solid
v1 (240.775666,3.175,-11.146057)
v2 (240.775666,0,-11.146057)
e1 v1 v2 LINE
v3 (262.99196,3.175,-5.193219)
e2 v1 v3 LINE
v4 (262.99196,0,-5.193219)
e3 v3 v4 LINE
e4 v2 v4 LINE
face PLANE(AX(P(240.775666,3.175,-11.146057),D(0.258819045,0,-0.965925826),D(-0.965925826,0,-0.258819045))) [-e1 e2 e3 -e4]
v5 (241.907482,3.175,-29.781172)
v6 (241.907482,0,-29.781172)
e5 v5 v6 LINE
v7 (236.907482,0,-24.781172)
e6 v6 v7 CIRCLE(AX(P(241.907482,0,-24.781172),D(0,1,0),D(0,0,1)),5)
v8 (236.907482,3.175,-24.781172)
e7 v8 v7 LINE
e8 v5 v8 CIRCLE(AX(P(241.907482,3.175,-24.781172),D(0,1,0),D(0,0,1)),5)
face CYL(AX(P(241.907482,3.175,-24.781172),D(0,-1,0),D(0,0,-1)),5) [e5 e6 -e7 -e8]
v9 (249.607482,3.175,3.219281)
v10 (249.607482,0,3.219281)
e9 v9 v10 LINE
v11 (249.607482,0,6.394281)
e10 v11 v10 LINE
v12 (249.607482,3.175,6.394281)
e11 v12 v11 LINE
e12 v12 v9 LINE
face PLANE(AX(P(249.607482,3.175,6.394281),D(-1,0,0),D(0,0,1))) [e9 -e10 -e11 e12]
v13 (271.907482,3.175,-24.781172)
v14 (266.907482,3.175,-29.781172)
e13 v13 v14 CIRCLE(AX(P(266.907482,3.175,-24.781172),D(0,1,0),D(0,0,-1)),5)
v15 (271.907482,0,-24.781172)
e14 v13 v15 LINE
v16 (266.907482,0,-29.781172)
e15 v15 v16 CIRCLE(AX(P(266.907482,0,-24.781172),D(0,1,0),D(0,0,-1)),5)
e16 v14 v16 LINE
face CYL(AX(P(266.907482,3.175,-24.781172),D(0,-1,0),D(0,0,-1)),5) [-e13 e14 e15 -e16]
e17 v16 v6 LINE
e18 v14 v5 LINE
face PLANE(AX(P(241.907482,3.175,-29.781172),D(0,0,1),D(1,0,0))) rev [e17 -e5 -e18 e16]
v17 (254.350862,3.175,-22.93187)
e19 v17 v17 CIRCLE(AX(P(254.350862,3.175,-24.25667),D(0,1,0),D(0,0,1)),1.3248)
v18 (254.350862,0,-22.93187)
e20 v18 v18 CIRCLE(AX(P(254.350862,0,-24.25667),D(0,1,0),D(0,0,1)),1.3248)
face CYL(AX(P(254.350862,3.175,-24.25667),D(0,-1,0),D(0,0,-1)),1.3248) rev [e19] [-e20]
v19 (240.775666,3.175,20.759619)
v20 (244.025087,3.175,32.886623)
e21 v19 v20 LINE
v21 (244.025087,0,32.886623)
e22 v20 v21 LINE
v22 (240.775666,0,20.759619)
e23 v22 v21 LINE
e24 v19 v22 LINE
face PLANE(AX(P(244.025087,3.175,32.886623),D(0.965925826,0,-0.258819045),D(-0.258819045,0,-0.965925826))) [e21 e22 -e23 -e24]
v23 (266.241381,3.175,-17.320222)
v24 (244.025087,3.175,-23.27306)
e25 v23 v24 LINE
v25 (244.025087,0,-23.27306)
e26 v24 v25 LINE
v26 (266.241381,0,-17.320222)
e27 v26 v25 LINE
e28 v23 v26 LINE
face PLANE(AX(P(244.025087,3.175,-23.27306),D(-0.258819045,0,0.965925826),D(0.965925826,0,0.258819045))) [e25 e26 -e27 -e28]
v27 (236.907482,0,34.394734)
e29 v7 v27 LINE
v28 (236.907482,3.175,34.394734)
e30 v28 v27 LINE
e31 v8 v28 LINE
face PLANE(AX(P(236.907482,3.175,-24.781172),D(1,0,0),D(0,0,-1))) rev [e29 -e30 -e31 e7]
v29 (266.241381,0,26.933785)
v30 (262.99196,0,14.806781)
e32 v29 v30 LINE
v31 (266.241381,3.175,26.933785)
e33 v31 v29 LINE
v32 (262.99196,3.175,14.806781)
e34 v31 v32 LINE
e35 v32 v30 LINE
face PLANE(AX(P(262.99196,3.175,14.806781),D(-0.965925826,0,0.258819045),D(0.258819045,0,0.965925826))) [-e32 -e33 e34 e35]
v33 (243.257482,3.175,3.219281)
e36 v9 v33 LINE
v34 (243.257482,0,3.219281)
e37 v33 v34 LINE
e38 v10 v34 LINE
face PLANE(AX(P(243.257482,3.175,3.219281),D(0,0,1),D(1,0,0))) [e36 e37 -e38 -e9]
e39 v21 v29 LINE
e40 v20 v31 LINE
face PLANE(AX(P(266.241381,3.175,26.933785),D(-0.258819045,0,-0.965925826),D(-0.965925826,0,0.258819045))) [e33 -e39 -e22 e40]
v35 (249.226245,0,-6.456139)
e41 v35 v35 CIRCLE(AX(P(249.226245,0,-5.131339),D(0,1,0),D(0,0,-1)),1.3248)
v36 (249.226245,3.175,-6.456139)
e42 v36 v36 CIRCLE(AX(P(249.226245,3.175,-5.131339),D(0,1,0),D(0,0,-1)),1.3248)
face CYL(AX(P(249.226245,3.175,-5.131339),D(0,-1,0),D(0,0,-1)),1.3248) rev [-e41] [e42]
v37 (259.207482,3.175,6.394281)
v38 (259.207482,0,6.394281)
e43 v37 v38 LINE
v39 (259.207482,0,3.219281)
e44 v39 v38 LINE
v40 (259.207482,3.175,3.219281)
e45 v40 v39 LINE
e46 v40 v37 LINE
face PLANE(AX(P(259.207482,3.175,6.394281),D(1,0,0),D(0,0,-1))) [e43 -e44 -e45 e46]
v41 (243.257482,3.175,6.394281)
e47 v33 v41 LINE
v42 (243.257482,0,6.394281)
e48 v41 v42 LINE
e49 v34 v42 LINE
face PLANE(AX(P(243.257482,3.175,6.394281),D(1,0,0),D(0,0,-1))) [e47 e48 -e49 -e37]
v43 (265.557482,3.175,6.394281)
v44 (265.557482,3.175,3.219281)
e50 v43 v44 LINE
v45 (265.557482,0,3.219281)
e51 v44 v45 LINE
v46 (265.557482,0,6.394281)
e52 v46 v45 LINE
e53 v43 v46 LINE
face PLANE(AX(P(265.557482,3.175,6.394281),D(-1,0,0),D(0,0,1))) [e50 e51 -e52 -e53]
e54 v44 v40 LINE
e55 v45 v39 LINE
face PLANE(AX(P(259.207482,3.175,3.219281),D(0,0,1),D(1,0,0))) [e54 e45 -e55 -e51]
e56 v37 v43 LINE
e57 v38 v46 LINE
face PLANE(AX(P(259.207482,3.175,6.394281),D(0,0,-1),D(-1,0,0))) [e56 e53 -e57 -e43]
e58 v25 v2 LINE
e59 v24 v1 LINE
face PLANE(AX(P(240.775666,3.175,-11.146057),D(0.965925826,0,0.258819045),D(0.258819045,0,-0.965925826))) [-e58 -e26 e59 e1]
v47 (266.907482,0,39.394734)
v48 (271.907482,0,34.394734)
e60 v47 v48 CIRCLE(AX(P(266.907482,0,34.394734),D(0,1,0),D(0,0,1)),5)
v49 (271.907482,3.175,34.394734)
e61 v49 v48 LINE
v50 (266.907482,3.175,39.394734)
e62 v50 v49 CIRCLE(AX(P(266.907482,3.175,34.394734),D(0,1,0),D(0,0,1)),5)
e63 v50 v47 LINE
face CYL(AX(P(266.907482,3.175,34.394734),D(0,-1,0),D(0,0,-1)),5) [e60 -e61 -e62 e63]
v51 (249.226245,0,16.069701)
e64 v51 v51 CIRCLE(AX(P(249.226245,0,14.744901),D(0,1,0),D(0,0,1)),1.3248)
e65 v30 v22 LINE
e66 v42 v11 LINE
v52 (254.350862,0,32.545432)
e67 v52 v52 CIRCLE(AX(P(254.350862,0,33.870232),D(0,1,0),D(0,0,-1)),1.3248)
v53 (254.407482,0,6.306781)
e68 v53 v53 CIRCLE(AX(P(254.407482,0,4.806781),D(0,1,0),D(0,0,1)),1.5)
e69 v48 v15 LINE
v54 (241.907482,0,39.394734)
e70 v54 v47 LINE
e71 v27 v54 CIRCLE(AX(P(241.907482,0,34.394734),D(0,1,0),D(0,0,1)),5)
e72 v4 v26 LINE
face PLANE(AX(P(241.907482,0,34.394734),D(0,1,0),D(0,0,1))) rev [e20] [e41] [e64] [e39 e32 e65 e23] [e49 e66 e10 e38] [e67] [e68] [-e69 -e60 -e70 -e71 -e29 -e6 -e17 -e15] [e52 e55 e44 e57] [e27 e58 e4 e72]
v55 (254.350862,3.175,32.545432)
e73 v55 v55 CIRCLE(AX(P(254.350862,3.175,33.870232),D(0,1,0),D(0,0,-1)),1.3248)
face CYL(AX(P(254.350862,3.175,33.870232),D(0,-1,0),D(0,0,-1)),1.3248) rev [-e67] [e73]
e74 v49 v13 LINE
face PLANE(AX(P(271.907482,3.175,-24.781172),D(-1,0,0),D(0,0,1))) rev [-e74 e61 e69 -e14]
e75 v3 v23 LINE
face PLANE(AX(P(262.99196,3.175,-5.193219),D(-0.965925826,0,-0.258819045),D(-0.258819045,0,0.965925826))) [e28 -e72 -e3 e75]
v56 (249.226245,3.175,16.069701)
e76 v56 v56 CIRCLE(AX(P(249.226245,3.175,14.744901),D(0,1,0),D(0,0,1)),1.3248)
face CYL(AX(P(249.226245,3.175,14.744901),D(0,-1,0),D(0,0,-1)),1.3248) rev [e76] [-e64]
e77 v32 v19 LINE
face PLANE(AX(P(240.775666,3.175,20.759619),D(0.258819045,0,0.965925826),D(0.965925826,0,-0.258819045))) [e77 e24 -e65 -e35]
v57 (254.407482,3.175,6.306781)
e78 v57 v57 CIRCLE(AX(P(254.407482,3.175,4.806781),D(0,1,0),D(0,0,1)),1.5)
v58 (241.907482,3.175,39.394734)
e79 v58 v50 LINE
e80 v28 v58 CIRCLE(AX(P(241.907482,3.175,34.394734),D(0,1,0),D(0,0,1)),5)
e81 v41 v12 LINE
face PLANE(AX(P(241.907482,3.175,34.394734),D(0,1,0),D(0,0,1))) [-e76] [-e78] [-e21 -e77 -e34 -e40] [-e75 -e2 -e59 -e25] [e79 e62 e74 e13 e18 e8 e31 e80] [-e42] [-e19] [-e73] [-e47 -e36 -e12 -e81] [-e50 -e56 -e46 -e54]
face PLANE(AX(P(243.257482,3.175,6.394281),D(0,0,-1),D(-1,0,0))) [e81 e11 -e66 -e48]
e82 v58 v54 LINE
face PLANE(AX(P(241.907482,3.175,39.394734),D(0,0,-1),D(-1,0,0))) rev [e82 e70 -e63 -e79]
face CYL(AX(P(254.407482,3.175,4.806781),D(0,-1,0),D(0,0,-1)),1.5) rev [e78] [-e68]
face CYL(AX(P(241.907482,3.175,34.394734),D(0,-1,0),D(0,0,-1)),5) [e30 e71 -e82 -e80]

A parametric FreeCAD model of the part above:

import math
import FreeCAD as App
import Part
import Sketcher
Q = App.Units.Quantity


def add_polygon(sketch, points):
    """Adds a closed chain of lines whose ends are joined by coincident constraints."""
    first, n = sketch.GeometryCount, len(points)
    for a, b in zip(points, points[1:] + points[:1]):
        sketch.addGeometry(Part.LineSegment(App.Vector(*a, 0), App.Vector(*b, 0)), False)
    for i in range(n):
        sketch.addConstraint(Sketcher.Constraint("Coincident", first + i, 2, first + (i + 1) % n, 1))

doc = App.newDocument("Part")
body = doc.addObject("PartDesign::Body", "Body")

sketch1 = doc.addObject("Sketcher::SketchObject", "Sketch")
body.addObject(sketch1)
sketch1.AttachmentSupport = (doc.XZ_Plane, [""])
sketch1.MapMode = "FlatFace"
sketch1.addGeometry(Part.LineSegment(App.Vector(266.9, -29.8, 0), App.Vector(241.9, -29.8, 0)), False)
sketch1.addGeometry(Part.ArcOfCircle(Part.Circle(App.Vector(241.9, -24.8, 0), App.Vector(0, 0, 1), 5), math.radians(180), math.radians(270)), False)
sketch1.addGeometry(Part.LineSegment(App.Vector(236.9, -24.8, 0), App.Vector(236.9, 34.4, 0)), False)
sketch1.addGeometry(Part.ArcOfCircle(Part.Circle(App.Vector(241.9, 34.4, 0), App.Vector(0, 0, 1), 5), math.radians(90), math.radians(180)), False)
sketch1.addGeometry(Part.LineSegment(App.Vector(241.9, 39.4, 0), App.Vector(266.9, 39.4, 0)), False)
sketch1.addGeometry(Part.ArcOfCircle(Part.Circle(App.Vector(266.9, 34.4, 0), App.Vector(0, 0, 1), 5), math.radians(0), math.radians(90)), False)
sketch1.addGeometry(Part.LineSegment(App.Vector(271.9, 34.4, 0), App.Vector(271.9, -24.8, 0)), False)
sketch1.addGeometry(Part.ArcOfCircle(Part.Circle(App.Vector(266.9, -24.8, 0), App.Vector(0, 0, 1), 5), math.radians(-90), math.radians(0)), False)
sketch1.addGeometry(Part.Circle(App.Vector(254.4, 33.9, 0), App.Vector(0, 0, 1), 1.3), False)
add_polygon(sketch1, [(259.2, 6.4), (259.2, 3.2), (265.6, 3.2), (265.6, 6.4)])
sketch1.addGeometry(Part.Circle(App.Vector(254.4, 4.8, 0), App.Vector(0, 0, 1), 1.5), False)
add_polygon(sketch1, [(263, 14.8), (266.2, 26.9), (244, 32.9), (240.8, 20.8)])
sketch1.addGeometry(Part.Circle(App.Vector(249.2, 14.7, 0), App.Vector(0, 0, 1), 1.3), False)
add_polygon(sketch1, [(243.3, 6.4), (243.3, 3.2), (249.6, 3.2), (249.6, 6.4)])
sketch1.addGeometry(Part.Circle(App.Vector(254.4, -24.3, 0), App.Vector(0, 0, 1), 1.3), False)
sketch1.addGeometry(Part.Circle(App.Vector(249.2, -5.1, 0), App.Vector(0, 0, 1), 1.3), False)
add_polygon(sketch1, [(240.8, -11.1), (244, -23.3), (266.2, -17.3), (263, -5.2)])
sketch1.addConstraint([
    Sketcher.Constraint("Tangent", 0, 2, 1, 2),
    Sketcher.Constraint("Tangent", 1, 1, 2, 1),
    Sketcher.Constraint("Tangent", 2, 2, 3, 2),
    Sketcher.Constraint("Tangent", 3, 1, 4, 1),
    Sketcher.Constraint("Tangent", 4, 2, 5, 2),
    Sketcher.Constraint("Tangent", 5, 1, 6, 1),
    Sketcher.Constraint("Tangent", 6, 2, 7, 2),
    Sketcher.Constraint("Tangent", 7, 1, 0, 1),
    Sketcher.Constraint("Horizontal", 0),
    Sketcher.Constraint("Vertical", 2),
    Sketcher.Constraint("Horizontal", 4),
    Sketcher.Constraint("Vertical", 6),
    Sketcher.Constraint("Vertical", 9),
    Sketcher.Constraint("Horizontal", 10),
    Sketcher.Constraint("Vertical", 11),
    Sketcher.Constraint("Horizontal", 12),
    Sketcher.Constraint("Vertical", 19),
    Sketcher.Constraint("Horizontal", 20),
    Sketcher.Constraint("Vertical", 21),
    Sketcher.Constraint("Horizontal", 22),
    Sketcher.Constraint("Equal", 1, 3),
    Sketcher.Constraint("Equal", 3, 5),
    Sketcher.Constraint("Equal", 5, 7),
    Sketcher.Constraint("Equal", 8, 18),
    Sketcher.Constraint("Equal", 18, 23),
    Sketcher.Constraint("Equal", 23, 24),
    Sketcher.Constraint("Perpendicular", 14, 15),
    Sketcher.Constraint("Perpendicular", 15, 16),
    Sketcher.Constraint("Perpendicular", 16, 17),
    Sketcher.Constraint("Perpendicular", 25, 26),
    Sketcher.Constraint("Perpendicular", 26, 27),
    Sketcher.Constraint("Perpendicular", 27, 28),
    Sketcher.Constraint("Horizontal", 10, 2, 19, 2),
    Sketcher.Constraint("Horizontal", 12, 2, 21, 2),
    Sketcher.Constraint("Vertical", 8, 3, 23, 3),
    Sketcher.Constraint("Vertical", 18, 3, 24, 3),
    Sketcher.Constraint("Vertical", 15, 2, 25, 2),
    Sketcher.Constraint("Vertical", 14, 2, 26, 2),
    Sketcher.Constraint("Vertical", 17, 2, 27, 2),
    Sketcher.Constraint("Equal", 12, 20),
    Sketcher.Constraint("Equal", 16, 25),
    Sketcher.Constraint("Diameter", 13, Q("3 mm")),
    Sketcher.Constraint("Radius", 1, Q("5 mm")),
    Sketcher.Constraint("DistanceX", 0, 2, 0, 1, Q("25 mm")),
    Sketcher.Constraint("Angle", 14, Q("75 deg")),
    Sketcher.Constraint("Distance", 15, Q("23 mm")),
    Sketcher.Constraint("Diameter", 8, Q("2.6496 mm")),
    Sketcher.Constraint("DistanceX", 10, 1, 10, 2, Q("6.35 mm")),
    Sketcher.Constraint("DistanceX", 13, 3, 5, 3, Q("12.5 mm")),
    Sketcher.Constraint("DistanceX", 13, 3, 9, 2, Q("4.8 mm")),
    Sketcher.Constraint("DistanceX", 20, 2, 13, 3, Q("4.8 mm")),
    Sketcher.Constraint("DistanceY", 9, 2, 9, 1, Q("3.175 mm")),
    Sketcher.Constraint("DistanceY", -1, 1, 18, 3, Q("14.744901 mm")),
    Sketcher.Constraint("DistanceY", 9, 2, 13, 3, Q("1.5875 mm")),
    Sketcher.Constraint("DistanceX", 14, 2, 5, 3, Q("0.666101 mm")),
    Sketcher.Constraint("DistanceY", 11, 2, 17, 2, Q("8.4125 mm")),
    Sketcher.Constraint("DistanceY", 27, 2, 10, 2, Q("8.4125 mm")),
    Sketcher.Constraint("DistanceY", 2, 1, 2, 2, Q("59.175907 mm")),
    Sketcher.Constraint("DistanceX", -1, 1, 1, 3, Q("241.907482 mm")),
    Sketcher.Constraint("DistanceY", -1, 1, 13, 3, Q("4.806781 mm")),
    Sketcher.Constraint("DistanceY", 23, 3, -1, 1, Q("24.25667 mm")),
    Sketcher.Constraint("DistanceY", 24, 3, -1, 1, Q("5.131339 mm")),
    Sketcher.Constraint("DistanceX", -1, 1, 17, 2, Q("262.99196 mm")),
    Sketcher.Constraint("DistanceX", 3, 3, 8, 3, Q("12.44338 mm")),
    Sketcher.Constraint("DistanceY", 13, 3, 8, 3, Q("29.063451 mm")),
    Sketcher.Constraint("DistanceY", 14, 2, 5, 3, Q("7.46095 mm")),
    Sketcher.Constraint("DistanceX", 16, 2, 18, 3, Q("8.450579 mm")),
])
pad1 = doc.addObject("PartDesign::Pad", "Pad")
body.addObject(pad1)
pad1.Profile = sketch1
pad1.Length = 3.175
pad1.Reversed = True

doc.recompute()
